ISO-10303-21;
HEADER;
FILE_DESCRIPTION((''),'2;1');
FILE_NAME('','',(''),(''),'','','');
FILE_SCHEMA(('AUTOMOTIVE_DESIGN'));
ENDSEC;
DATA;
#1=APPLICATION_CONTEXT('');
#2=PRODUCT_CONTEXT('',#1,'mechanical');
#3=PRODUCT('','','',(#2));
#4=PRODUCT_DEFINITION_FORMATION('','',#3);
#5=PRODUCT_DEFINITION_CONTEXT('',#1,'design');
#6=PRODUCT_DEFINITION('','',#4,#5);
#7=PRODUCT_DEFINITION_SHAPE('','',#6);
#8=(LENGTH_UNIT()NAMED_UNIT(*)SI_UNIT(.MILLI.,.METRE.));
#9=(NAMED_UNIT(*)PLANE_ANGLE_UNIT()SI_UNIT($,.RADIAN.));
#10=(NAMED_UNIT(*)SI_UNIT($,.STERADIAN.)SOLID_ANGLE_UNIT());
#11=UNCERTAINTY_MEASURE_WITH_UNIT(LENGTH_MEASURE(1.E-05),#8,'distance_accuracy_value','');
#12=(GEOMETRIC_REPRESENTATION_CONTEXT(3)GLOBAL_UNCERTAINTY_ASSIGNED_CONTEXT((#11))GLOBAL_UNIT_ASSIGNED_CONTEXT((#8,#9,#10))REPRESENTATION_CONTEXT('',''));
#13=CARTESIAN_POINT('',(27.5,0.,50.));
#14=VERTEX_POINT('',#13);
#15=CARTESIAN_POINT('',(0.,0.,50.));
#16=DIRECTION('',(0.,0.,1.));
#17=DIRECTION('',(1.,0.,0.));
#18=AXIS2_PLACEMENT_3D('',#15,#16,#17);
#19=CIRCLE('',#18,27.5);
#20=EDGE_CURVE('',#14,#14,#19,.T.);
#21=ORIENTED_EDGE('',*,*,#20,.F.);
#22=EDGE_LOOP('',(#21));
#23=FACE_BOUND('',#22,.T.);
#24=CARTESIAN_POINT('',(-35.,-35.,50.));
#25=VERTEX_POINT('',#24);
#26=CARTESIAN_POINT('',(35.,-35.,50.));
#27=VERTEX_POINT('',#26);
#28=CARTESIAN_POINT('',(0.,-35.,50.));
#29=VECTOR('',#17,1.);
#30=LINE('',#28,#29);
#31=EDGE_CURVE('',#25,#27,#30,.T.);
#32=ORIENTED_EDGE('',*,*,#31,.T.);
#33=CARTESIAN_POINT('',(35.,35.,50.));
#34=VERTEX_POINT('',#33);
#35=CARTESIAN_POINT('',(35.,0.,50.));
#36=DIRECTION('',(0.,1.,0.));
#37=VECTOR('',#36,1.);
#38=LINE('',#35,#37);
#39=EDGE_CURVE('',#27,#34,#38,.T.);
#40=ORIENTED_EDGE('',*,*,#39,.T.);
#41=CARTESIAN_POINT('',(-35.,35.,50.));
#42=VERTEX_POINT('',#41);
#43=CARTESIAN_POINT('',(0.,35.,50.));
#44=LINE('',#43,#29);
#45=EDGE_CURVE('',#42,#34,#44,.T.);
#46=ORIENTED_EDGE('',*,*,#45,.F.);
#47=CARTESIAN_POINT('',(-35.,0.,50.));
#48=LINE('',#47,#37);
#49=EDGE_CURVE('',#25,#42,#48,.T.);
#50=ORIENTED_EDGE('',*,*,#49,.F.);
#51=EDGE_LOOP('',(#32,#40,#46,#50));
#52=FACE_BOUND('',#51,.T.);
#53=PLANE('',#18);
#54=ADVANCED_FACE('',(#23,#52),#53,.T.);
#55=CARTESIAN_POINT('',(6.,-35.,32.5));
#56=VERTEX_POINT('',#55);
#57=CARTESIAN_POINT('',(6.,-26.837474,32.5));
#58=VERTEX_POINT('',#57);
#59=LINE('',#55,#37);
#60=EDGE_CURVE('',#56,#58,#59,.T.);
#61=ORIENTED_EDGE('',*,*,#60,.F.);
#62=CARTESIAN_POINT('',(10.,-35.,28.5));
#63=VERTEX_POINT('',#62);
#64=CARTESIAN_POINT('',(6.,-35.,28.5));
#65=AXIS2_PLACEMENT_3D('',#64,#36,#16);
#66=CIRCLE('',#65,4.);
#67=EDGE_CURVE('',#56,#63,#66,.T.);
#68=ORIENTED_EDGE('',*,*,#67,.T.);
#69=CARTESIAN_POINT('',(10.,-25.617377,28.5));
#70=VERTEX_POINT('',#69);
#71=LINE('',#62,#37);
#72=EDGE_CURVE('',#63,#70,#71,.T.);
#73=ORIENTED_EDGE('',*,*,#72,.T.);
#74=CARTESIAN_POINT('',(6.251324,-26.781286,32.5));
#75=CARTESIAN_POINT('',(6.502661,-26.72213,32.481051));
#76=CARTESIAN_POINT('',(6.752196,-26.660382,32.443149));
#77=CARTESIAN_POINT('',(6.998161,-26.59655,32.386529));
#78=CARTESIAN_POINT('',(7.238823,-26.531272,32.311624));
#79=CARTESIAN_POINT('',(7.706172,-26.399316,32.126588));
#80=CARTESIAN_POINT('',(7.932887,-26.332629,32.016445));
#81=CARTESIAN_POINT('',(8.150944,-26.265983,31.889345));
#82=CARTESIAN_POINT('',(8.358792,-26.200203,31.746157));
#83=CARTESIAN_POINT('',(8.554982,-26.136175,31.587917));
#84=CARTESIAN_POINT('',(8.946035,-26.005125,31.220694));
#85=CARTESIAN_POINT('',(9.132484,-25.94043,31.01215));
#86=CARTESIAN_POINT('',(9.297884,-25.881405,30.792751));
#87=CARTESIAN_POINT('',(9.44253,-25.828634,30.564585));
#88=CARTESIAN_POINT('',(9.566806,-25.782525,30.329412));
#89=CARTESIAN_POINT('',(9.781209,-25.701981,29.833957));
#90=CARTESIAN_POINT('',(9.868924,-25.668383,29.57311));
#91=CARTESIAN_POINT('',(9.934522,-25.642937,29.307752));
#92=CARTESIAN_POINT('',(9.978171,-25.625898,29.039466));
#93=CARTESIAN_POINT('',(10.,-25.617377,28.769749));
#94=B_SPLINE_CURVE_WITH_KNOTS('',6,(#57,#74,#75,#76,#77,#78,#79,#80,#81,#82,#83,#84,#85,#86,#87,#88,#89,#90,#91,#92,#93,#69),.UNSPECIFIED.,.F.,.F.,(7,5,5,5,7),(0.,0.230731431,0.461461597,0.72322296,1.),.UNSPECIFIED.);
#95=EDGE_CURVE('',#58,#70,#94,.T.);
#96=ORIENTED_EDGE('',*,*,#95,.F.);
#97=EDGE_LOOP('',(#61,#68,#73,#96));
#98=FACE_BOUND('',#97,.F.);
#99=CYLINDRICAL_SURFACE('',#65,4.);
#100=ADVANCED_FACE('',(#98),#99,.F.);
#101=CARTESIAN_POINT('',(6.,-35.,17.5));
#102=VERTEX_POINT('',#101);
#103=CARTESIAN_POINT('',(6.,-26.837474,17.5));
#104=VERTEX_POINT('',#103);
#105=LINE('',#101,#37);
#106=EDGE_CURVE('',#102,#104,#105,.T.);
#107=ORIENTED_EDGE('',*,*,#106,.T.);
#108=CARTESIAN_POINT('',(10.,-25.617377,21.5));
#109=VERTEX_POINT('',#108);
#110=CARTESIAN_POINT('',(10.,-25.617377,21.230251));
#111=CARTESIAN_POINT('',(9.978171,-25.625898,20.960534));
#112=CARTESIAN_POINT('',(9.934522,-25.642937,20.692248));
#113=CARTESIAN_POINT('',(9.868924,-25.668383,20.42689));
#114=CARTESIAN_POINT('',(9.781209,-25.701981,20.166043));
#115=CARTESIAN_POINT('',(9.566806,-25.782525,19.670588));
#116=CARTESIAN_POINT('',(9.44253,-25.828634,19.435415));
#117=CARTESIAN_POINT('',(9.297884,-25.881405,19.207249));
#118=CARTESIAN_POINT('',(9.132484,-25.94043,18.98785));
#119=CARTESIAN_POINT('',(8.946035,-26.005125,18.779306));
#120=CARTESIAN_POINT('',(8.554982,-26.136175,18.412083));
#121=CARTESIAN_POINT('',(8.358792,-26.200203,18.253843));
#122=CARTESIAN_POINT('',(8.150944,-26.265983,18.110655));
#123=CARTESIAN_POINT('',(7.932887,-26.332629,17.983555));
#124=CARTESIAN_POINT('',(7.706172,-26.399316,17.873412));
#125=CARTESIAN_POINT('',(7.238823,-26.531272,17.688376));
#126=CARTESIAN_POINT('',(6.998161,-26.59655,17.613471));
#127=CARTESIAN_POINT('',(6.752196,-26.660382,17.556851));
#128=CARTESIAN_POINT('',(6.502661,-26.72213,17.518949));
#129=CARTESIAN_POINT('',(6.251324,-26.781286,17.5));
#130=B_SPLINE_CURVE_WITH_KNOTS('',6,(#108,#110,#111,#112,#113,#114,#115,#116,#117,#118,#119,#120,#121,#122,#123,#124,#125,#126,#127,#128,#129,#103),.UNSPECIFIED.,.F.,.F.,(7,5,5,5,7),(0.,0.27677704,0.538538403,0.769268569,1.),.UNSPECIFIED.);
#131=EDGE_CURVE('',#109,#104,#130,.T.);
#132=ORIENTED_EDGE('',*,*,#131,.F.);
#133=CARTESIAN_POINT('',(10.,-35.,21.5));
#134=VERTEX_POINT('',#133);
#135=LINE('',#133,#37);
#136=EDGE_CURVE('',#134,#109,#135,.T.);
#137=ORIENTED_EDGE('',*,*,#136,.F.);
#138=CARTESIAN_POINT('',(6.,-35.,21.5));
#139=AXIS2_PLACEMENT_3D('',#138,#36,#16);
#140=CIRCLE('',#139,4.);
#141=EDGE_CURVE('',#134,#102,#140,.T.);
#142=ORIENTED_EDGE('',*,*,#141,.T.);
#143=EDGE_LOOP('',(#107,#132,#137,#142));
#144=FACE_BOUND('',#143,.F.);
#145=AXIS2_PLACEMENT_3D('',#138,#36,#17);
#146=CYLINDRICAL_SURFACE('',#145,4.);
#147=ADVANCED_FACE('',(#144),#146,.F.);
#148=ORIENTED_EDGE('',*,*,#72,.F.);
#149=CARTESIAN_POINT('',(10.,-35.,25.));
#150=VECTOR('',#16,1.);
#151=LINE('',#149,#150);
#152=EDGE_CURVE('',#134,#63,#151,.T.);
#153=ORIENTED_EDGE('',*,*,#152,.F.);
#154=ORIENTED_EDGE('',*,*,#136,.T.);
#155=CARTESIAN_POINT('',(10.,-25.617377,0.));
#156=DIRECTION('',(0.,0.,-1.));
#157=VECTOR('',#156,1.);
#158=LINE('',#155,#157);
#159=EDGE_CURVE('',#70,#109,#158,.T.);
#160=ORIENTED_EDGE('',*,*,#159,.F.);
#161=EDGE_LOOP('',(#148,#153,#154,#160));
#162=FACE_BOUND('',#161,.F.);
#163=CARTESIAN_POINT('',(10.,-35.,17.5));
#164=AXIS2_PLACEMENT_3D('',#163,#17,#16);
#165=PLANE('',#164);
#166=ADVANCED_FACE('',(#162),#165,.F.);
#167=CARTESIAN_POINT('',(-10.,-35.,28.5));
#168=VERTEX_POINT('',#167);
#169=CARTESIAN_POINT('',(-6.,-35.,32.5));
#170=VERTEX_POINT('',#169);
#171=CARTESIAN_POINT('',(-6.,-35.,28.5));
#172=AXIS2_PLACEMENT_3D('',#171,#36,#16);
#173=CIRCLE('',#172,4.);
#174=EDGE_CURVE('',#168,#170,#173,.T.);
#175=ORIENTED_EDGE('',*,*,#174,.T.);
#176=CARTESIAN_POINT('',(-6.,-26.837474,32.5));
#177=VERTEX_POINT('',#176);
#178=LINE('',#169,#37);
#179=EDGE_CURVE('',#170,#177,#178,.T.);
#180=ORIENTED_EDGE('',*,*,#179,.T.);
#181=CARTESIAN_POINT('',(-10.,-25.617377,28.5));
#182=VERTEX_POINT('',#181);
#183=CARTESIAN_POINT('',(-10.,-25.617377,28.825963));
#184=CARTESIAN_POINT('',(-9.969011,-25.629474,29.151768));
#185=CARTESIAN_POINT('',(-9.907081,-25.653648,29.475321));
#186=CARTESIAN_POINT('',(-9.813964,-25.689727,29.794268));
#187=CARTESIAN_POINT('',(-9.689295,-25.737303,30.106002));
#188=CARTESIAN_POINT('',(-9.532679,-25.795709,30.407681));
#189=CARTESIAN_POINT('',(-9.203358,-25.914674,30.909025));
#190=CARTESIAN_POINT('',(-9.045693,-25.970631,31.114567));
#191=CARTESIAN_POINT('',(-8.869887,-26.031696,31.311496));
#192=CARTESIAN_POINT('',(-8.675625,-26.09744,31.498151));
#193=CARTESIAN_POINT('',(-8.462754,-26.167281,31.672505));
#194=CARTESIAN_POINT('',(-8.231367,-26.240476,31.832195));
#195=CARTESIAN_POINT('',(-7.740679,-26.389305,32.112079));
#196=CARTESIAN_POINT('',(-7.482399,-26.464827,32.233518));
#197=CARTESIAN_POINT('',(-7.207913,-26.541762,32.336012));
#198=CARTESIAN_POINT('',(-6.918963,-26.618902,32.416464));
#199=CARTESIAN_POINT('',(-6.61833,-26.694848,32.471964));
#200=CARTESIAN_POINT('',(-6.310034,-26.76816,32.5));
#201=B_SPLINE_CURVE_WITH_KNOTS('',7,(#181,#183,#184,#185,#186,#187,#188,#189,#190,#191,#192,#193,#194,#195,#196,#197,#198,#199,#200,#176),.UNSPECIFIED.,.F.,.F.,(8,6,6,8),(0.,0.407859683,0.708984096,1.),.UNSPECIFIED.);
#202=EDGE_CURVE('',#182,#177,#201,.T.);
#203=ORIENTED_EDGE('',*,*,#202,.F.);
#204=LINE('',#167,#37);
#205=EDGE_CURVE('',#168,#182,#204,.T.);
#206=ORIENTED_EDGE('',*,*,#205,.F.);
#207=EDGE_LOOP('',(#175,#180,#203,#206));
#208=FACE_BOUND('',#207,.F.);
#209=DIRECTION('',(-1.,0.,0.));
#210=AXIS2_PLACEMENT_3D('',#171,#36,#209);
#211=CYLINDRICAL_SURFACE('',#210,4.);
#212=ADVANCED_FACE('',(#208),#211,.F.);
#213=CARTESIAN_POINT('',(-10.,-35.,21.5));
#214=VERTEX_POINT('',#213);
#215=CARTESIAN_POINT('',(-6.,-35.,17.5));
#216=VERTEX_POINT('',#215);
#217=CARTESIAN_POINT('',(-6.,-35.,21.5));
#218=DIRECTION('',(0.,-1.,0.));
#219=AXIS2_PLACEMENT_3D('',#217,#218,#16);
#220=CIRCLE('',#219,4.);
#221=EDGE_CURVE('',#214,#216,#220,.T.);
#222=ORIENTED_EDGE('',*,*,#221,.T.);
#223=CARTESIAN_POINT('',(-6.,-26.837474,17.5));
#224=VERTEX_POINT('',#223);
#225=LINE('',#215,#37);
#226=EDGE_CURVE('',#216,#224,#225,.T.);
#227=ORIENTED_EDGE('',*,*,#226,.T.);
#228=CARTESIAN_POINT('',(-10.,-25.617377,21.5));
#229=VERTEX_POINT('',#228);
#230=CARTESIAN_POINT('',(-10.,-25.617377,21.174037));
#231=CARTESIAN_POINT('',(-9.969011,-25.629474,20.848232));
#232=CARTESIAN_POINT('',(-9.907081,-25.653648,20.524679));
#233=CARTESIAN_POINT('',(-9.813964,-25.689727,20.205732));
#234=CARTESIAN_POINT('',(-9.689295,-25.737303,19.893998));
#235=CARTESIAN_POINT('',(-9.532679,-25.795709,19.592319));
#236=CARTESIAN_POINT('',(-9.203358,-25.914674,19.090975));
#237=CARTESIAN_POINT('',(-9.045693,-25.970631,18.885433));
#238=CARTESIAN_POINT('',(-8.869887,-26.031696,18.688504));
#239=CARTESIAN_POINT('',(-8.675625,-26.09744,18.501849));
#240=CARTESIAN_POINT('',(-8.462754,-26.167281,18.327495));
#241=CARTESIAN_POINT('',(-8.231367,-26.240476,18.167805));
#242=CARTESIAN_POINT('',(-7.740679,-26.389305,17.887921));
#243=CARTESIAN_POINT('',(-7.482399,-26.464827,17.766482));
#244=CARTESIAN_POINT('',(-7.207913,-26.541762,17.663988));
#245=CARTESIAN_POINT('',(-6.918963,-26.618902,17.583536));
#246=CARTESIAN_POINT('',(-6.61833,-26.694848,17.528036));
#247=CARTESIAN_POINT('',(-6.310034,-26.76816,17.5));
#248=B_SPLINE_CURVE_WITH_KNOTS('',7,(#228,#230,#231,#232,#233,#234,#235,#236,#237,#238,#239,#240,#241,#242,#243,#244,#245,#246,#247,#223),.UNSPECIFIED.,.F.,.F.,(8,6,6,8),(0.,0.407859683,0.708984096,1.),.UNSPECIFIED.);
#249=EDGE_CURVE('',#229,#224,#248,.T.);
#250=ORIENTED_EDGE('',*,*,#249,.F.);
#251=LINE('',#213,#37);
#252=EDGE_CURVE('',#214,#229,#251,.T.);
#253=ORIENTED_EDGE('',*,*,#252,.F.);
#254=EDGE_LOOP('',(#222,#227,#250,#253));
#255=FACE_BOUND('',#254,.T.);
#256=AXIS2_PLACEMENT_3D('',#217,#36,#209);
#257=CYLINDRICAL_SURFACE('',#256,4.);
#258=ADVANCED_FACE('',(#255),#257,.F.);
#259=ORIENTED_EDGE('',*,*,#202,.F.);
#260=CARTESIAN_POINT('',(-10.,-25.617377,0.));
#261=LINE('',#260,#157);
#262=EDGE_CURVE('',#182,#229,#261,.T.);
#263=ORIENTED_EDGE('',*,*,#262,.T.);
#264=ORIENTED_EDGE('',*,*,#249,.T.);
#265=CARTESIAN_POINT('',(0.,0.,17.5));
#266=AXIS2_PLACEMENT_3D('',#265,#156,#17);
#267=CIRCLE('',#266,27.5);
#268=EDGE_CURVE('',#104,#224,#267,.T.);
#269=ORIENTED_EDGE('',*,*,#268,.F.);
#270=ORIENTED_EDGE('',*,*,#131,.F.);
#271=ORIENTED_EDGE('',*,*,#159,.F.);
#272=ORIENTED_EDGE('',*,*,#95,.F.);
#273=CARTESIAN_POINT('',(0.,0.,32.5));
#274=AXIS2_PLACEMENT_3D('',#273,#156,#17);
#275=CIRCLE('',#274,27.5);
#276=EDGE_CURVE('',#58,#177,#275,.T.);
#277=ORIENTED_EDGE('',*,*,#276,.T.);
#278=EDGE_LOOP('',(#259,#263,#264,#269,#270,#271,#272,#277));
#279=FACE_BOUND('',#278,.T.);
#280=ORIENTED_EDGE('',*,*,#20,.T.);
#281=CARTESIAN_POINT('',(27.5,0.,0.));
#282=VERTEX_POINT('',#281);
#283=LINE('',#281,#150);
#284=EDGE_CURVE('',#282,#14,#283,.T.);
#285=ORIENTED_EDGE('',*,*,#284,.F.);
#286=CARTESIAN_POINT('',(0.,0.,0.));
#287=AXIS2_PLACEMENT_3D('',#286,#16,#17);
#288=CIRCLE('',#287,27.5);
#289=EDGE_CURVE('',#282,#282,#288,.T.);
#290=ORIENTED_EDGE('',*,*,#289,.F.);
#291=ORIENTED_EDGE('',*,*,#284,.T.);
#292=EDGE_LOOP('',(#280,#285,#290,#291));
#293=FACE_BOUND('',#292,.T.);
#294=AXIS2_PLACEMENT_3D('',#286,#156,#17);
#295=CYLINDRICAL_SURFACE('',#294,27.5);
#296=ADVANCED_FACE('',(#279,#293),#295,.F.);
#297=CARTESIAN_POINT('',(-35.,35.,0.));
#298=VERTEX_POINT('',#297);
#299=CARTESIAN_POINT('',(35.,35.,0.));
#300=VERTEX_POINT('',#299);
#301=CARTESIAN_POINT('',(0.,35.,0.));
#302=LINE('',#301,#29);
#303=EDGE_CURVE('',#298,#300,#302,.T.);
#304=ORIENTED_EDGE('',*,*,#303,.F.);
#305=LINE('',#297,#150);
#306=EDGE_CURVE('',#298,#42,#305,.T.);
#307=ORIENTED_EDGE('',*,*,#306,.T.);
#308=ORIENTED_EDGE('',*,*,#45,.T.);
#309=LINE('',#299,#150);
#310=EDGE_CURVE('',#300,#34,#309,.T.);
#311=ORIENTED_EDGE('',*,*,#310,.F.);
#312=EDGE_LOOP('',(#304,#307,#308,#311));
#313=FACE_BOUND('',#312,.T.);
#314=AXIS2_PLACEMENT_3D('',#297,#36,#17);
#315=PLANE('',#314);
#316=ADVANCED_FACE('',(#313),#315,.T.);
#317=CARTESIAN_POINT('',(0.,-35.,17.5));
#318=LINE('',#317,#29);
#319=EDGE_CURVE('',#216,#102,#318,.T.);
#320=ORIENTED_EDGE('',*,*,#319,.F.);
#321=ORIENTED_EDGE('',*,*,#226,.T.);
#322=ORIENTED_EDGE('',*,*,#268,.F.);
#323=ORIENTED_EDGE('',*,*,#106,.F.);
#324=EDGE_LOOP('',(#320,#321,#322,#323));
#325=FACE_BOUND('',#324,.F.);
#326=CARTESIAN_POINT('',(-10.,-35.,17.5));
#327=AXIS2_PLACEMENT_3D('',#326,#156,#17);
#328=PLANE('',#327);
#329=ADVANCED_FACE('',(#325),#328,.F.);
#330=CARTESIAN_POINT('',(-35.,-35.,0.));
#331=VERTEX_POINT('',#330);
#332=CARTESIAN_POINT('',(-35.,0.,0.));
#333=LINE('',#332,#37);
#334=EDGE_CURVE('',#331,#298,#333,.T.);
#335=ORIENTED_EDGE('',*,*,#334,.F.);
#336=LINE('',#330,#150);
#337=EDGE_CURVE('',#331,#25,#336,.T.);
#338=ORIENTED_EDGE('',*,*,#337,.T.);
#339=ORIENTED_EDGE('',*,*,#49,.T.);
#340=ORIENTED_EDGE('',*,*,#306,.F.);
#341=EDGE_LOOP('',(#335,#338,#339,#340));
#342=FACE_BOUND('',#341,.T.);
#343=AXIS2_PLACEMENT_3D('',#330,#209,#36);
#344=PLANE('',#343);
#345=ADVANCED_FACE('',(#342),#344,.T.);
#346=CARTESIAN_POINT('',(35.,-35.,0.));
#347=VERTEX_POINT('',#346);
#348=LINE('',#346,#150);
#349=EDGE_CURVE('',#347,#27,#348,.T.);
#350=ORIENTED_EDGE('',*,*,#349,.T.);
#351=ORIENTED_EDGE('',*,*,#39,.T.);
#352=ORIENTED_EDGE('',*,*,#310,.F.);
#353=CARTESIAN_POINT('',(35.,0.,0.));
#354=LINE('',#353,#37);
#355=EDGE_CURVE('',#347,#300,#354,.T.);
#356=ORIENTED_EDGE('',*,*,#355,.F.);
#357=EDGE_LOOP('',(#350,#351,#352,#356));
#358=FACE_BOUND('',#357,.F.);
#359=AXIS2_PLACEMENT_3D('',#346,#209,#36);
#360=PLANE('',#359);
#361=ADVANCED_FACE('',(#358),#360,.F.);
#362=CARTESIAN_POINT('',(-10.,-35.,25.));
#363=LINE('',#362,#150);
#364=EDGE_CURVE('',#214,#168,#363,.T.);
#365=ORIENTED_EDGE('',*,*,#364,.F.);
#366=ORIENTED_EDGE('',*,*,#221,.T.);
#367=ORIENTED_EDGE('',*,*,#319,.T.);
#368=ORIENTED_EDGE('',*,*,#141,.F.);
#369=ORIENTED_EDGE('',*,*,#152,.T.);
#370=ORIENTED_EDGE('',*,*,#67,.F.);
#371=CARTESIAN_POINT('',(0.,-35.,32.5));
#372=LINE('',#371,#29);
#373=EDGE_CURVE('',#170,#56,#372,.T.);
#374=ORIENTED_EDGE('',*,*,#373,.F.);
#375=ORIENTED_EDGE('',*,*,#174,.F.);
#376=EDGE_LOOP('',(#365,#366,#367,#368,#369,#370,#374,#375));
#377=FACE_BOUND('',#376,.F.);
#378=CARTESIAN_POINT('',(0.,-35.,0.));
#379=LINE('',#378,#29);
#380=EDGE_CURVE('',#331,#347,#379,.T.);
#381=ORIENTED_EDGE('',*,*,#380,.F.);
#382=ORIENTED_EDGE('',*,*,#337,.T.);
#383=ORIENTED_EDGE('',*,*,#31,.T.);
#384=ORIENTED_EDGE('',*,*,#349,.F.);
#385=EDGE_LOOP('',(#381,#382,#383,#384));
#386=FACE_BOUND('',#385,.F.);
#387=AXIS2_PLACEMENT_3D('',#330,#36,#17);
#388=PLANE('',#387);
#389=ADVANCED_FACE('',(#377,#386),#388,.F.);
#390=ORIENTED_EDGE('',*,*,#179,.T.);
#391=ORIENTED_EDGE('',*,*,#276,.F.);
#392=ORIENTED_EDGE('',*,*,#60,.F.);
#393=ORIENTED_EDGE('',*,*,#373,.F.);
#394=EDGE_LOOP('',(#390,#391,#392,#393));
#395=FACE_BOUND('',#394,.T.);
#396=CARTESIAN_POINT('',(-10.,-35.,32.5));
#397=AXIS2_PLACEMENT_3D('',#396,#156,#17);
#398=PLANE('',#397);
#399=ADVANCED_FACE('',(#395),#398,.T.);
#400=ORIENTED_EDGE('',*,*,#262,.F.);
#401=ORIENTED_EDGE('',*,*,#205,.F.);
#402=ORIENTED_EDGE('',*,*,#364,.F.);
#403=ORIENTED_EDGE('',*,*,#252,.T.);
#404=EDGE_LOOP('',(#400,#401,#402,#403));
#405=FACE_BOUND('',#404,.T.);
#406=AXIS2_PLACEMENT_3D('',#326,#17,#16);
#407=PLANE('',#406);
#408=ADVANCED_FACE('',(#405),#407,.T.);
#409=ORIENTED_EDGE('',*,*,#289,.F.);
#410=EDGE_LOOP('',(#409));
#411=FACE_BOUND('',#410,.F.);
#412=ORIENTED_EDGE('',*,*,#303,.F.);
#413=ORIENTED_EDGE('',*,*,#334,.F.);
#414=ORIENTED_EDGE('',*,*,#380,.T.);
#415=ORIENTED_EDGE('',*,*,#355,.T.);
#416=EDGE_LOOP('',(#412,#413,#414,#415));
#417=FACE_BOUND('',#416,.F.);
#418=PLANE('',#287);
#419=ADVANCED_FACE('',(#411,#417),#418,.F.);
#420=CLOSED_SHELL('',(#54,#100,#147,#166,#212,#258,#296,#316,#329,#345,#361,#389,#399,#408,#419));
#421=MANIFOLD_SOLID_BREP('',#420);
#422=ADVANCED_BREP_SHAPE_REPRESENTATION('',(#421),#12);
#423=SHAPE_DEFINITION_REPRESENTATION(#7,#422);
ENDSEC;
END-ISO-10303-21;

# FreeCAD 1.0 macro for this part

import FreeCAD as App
import Part
import Sketcher
from FreeCAD import Vector


def edges_at(feature, points):
    """Names of the edges that pass closest to the given points."""
    edges = feature.Shape.Edges
    near = lambda p: min(range(len(edges)), key=lambda i: edges[i].distToShape(Part.Vertex(*p))[0])
    return sorted({f"Edge{near(p) + 1}" for p in points})

doc = App.newDocument("Part")
body = doc.addObject("PartDesign::Body", "Body")

sketch1 = doc.addObject("Sketcher::SketchObject", "Sketch")
body.addObject(sketch1)
sketch1.AttachmentSupport = (doc.XY_Plane, [""])
sketch1.MapMode = "FlatFace"
sketch1.addGeometry([
    Part.LineSegment(Vector(-35, 35, 0), Vector(-35, -35, 0)),
    Part.LineSegment(Vector(-35, -35, 0), Vector(35, -35, 0)),
    Part.LineSegment(Vector(35, -35, 0), Vector(35, 35, 0)),
    Part.LineSegment(Vector(35, 35, 0), Vector(-35, 35, 0)),
    Part.Circle(Vector(0, 0, 0), Vector(0, 0, 1), 27.5),
], False)
sketch1.addConstraint([
    Sketcher.Constraint("Coincident", 0, 2, 1, 1),
    Sketcher.Constraint("Coincident", 1, 2, 2, 1),
    Sketcher.Constraint("Coincident", 2, 2, 3, 1),
    Sketcher.Constraint("Coincident", 3, 2, 0, 1),
    Sketcher.Constraint("Vertical", 0),
    Sketcher.Constraint("Horizontal", 1),
    Sketcher.Constraint("Vertical", 2),
    Sketcher.Constraint("Horizontal", 3),
    Sketcher.Constraint("Coincident", 4, 3, -1, 1),
    Sketcher.Constraint("Symmetric", 0, 2, 2, 2, -1, 1),
    Sketcher.Constraint("Equal", 3, 0),
    Sketcher.Constraint("Diameter", 4, 55.0),
    Sketcher.Constraint("DistanceX", 1, 1, 1, 2, 70.0),
])
pad1 = doc.addObject("PartDesign::Pad", "Pad")
body.addObject(pad1)
pad1.Profile = sketch1
pad1.Length = 50

sketch2 = doc.addObject("Sketcher::SketchObject", "Sketch001")
body.addObject(sketch2)
sketch2.AttachmentSupport = (doc.XZ_Plane, [""])
sketch2.MapMode = "FlatFace"
sketch2.AttachmentOffset = App.Placement(Vector(0, 0, 35), App.Rotation())
sketch2.addGeometry([
    Part.LineSegment(Vector(-10, 32.5, 0), Vector(-10, 17.5, 0)),
    Part.LineSegment(Vector(-10, 17.5, 0), Vector(10, 17.5, 0)),
    Part.LineSegment(Vector(10, 17.5, 0), Vector(10, 32.5, 0)),
    Part.LineSegment(Vector(10, 32.5, 0), Vector(-10, 32.5, 0)),
], False)
sketch2.addConstraint([
    Sketcher.Constraint("Coincident", 0, 2, 1, 1),
    Sketcher.Constraint("Coincident", 1, 2, 2, 1),
    Sketcher.Constraint("Coincident", 2, 2, 3, 1),
    Sketcher.Constraint("Coincident", 3, 2, 0, 1),
    Sketcher.Constraint("Vertical", 0),
    Sketcher.Constraint("Horizontal", 1),
    Sketcher.Constraint("Vertical", 2),
    Sketcher.Constraint("Horizontal", 3),
    Sketcher.Constraint("DistanceX", 1, 1, 1, 2, 20.0),
    Sketcher.Constraint("DistanceY", 0, 2, 0, 1, 15.0),
    Sketcher.Constraint("DistanceX", 0, 2, -1, 1, 10.0),
    Sketcher.Constraint("DistanceY", -1, 1, 0, 2, 17.5),
])
pocket1 = doc.addObject("PartDesign::Pocket", "Pocket")
body.addObject(pocket1)
pocket1.Profile = sketch2
pocket1.Length = 25
doc.recompute()

fillet = doc.addObject("PartDesign::Fillet", "Fillet")
body.addObject(fillet)
fillet.Base = (pocket1, edges_at(pocket1, [
    (-10, -30.309, 32.5),
    (10, -30.309, 32.5),
    (10, -30.309, 17.5),
    (-10, -30.309, 17.5),
]))
fillet.Radius = 4

doc.recompute()
